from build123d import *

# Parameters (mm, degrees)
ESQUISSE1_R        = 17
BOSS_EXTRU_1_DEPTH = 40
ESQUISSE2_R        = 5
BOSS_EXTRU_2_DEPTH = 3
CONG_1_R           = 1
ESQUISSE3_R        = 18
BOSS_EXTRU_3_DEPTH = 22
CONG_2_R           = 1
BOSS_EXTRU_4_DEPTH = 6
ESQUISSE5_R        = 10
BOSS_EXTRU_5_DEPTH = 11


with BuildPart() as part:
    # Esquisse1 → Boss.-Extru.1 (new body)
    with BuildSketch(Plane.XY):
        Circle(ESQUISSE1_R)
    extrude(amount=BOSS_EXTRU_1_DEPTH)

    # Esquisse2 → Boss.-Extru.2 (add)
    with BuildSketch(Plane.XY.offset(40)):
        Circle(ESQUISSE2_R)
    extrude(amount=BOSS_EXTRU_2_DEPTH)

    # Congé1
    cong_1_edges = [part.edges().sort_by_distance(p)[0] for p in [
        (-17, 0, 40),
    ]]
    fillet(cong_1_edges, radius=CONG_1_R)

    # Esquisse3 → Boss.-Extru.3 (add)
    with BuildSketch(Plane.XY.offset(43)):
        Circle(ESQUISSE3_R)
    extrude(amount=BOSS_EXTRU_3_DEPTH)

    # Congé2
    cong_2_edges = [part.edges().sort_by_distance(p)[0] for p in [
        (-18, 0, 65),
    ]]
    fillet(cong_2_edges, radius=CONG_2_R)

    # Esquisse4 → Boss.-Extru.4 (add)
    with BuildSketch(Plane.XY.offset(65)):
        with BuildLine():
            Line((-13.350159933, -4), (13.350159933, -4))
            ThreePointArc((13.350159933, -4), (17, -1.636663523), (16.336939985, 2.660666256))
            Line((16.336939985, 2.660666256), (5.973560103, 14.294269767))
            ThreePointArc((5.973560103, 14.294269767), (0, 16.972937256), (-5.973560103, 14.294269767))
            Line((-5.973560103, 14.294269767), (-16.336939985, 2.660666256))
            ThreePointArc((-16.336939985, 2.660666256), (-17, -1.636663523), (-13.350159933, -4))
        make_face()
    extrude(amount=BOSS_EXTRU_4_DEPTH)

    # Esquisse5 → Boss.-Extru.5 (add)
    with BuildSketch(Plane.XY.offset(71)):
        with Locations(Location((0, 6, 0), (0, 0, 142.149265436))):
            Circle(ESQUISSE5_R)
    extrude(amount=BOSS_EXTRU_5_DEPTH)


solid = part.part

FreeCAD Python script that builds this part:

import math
import FreeCAD as App
import Part
import Sketcher
Q = App.Units.Quantity


def edges_at(feature, points):
    """Names of the edges that pass closest to the given points."""
    edges = feature.Shape.Edges
    near = lambda p: min(range(len(edges)), key=lambda i: edges[i].distToShape(Part.Vertex(*p))[0])
    return sorted({f"Edge{near(p) + 1}" for p in points})

doc = App.newDocument("Part")
body = doc.addObject("PartDesign::Body", "Body")

# Sketch on XY plane
sketch1 = doc.addObject("Sketcher::SketchObject", "Sketch")
body.addObject(sketch1)
sketch1.AttachmentSupport = (doc.XY_Plane, [""])
sketch1.MapMode = "FlatFace"
sketch1.addGeometry(Part.Circle(App.Vector(0, 0, 0), App.Vector(0, 0, 1), 17), False)
sketch1.addConstraint(Sketcher.Constraint("Coincident", 0, 3, -1, 1))
sketch1.addConstraint(Sketcher.Constraint("Diameter", 0, Q("34 mm")))
pad1 = doc.addObject("PartDesign::Pad", "Pad")
body.addObject(pad1)
pad1.Profile = sketch1
pad1.Length = 40

# Sketch on XY plane
sketch2 = doc.addObject("Sketcher::SketchObject", "Sketch001")
body.addObject(sketch2)
sketch2.AttachmentSupport = (doc.XY_Plane, [""])
sketch2.MapMode = "FlatFace"
sketch2.AttachmentOffset = App.Placement(App.Vector(0, 0, 40), App.Rotation())
sketch2.addGeometry(Part.Circle(App.Vector(0, 0, 0), App.Vector(0, 0, 1), 5), False)
sketch2.addConstraint(Sketcher.Constraint("Coincident", 0, 3, -1, 1))
sketch2.addConstraint(Sketcher.Constraint("Diameter", 0, Q("10 mm")))
pad2 = doc.addObject("PartDesign::Pad", "Pad001")
body.addObject(pad2)
pad2.Profile = sketch2
pad2.Length = 3
doc.recompute()

fillet = doc.addObject("PartDesign::Fillet", "Fillet")
body.addObject(fillet)
fillet.Base = (pad2, edges_at(pad2, [(-17, 0, 40)]))
fillet.Radius = 1

# Sketch on XY plane
sketch3 = doc.addObject("Sketcher::SketchObject", "Sketch002")
body.addObject(sketch3)
sketch3.AttachmentSupport = (doc.XY_Plane, [""])
sketch3.MapMode = "FlatFace"
sketch3.AttachmentOffset = App.Placement(App.Vector(0, 0, 43), App.Rotation())
sketch3.addGeometry(Part.Circle(App.Vector(0, 0, 0), App.Vector(0, 0, 1), 18), False)
sketch3.addConstraint(Sketcher.Constraint("Coincident", 0, 3, -1, 1))
sketch3.addConstraint(Sketcher.Constraint("Diameter", 0, Q("36 mm")))
pad3 = doc.addObject("PartDesign::Pad", "Pad002")
body.addObject(pad3)
pad3.Profile = sketch3
pad3.Length = 22
doc.recompute()

fillet2 = doc.addObject("PartDesign::Fillet", "Fillet001")
body.addObject(fillet2)
fillet2.Base = (pad3, edges_at(pad3, [(-18, 0, 65)]))
fillet2.Radius = 1

# Sketch on XY plane
sketch4 = doc.addObject("Sketcher::SketchObject", "Sketch003")
body.addObject(sketch4)
sketch4.AttachmentSupport = (doc.XY_Plane, [""])
sketch4.MapMode = "FlatFace"
sketch4.AttachmentOffset = App.Placement(App.Vector(0, 0, 65), App.Rotation())
sketch4.addGeometry(Part.LineSegment(App.Vector(-13.4, -4, 0), App.Vector(13.4, -4, 0)), False)
sketch4.addGeometry(Part.ArcOfCircle(Part.Circle(App.Vector(13.4, 0, 0), App.Vector(0, 0, 1), 4), math.radians(-90), math.radians(42)), False)
sketch4.addGeometry(Part.LineSegment(App.Vector(16.3, 2.7, 0), App.Vector(6, 14.3, 0)), False)
sketch4.addGeometry(Part.ArcOfCircle(Part.Circle(App.Vector(0, 9, 0), App.Vector(0, 0, 1), 8), math.radians(42), math.radians(138)), False)
sketch4.addGeometry(Part.LineSegment(App.Vector(-6, 14.3, 0), App.Vector(-16.3, 2.7, 0)), False)
sketch4.addGeometry(Part.ArcOfCircle(Part.Circle(App.Vector(-13.4, 0, 0), App.Vector(0, 0, 1), 4), math.radians(138), math.radians(270)), False)
sketch4.addConstraint(Sketcher.Constraint("Tangent", 0, 2, 1, 1))
sketch4.addConstraint(Sketcher.Constraint("Tangent", 1, 2, 2, 1))
sketch4.addConstraint(Sketcher.Constraint("Tangent", 2, 2, 3, 1))
sketch4.addConstraint(Sketcher.Constraint("Tangent", 3, 2, 4, 1))
sketch4.addConstraint(Sketcher.Constraint("Tangent", 4, 2, 5, 1))
sketch4.addConstraint(Sketcher.Constraint("Tangent", 5, 2, 0, 1))
sketch4.addConstraint(Sketcher.Constraint("Horizontal", 0))
sketch4.addConstraint(Sketcher.Constraint("Equal", 1, 5))
sketch4.addConstraint(Sketcher.Constraint("Symmetric", 1, 3, 5, 3, -1, 1))
sketch4.addConstraint(Sketcher.Constraint("PointOnObject", 3, 3, -2))
sketch4.addConstraint(Sketcher.Constraint("Radius", 1, Q("4 mm")))
sketch4.addConstraint(Sketcher.Constraint("Radius", 3, Q("8 mm")))
sketch4.addConstraint(Sketcher.Constraint("DistanceX", 0, 1, 0, 2, Q("26.70032 mm")))
sketch4.addConstraint(Sketcher.Constraint("DistanceX", 5, 3, 1, 2, Q("29.6871 mm")))
pad4 = doc.addObject("PartDesign::Pad", "Pad003")
body.addObject(pad4)
pad4.Profile = sketch4
pad4.Length = 6

# Sketch on XY plane
sketch5 = doc.addObject("Sketcher::SketchObject", "Sketch004")
body.addObject(sketch5)
sketch5.AttachmentSupport = (doc.XY_Plane, [""])
sketch5.MapMode = "FlatFace"
sketch5.AttachmentOffset = App.Placement(App.Vector(0, 0, 71), App.Rotation())
sketch5.addGeometry(Part.Circle(App.Vector(0, 6, 0), App.Vector(0, 0, 1), 10), False)
sketch5.addConstraint(Sketcher.Constraint("PointOnObject", 0, 3, -2))
sketch5.addConstraint(Sketcher.Constraint("Diameter", 0, Q("20 mm")))
sketch5.addConstraint(Sketcher.Constraint("DistanceY", -1, 1, 0, 3, Q("6 mm")))
pad5 = doc.addObject("PartDesign::Pad", "Pad004")
body.addObject(pad5)
pad5.Profile = sketch5
pad5.Length = 11

doc.recompute()
